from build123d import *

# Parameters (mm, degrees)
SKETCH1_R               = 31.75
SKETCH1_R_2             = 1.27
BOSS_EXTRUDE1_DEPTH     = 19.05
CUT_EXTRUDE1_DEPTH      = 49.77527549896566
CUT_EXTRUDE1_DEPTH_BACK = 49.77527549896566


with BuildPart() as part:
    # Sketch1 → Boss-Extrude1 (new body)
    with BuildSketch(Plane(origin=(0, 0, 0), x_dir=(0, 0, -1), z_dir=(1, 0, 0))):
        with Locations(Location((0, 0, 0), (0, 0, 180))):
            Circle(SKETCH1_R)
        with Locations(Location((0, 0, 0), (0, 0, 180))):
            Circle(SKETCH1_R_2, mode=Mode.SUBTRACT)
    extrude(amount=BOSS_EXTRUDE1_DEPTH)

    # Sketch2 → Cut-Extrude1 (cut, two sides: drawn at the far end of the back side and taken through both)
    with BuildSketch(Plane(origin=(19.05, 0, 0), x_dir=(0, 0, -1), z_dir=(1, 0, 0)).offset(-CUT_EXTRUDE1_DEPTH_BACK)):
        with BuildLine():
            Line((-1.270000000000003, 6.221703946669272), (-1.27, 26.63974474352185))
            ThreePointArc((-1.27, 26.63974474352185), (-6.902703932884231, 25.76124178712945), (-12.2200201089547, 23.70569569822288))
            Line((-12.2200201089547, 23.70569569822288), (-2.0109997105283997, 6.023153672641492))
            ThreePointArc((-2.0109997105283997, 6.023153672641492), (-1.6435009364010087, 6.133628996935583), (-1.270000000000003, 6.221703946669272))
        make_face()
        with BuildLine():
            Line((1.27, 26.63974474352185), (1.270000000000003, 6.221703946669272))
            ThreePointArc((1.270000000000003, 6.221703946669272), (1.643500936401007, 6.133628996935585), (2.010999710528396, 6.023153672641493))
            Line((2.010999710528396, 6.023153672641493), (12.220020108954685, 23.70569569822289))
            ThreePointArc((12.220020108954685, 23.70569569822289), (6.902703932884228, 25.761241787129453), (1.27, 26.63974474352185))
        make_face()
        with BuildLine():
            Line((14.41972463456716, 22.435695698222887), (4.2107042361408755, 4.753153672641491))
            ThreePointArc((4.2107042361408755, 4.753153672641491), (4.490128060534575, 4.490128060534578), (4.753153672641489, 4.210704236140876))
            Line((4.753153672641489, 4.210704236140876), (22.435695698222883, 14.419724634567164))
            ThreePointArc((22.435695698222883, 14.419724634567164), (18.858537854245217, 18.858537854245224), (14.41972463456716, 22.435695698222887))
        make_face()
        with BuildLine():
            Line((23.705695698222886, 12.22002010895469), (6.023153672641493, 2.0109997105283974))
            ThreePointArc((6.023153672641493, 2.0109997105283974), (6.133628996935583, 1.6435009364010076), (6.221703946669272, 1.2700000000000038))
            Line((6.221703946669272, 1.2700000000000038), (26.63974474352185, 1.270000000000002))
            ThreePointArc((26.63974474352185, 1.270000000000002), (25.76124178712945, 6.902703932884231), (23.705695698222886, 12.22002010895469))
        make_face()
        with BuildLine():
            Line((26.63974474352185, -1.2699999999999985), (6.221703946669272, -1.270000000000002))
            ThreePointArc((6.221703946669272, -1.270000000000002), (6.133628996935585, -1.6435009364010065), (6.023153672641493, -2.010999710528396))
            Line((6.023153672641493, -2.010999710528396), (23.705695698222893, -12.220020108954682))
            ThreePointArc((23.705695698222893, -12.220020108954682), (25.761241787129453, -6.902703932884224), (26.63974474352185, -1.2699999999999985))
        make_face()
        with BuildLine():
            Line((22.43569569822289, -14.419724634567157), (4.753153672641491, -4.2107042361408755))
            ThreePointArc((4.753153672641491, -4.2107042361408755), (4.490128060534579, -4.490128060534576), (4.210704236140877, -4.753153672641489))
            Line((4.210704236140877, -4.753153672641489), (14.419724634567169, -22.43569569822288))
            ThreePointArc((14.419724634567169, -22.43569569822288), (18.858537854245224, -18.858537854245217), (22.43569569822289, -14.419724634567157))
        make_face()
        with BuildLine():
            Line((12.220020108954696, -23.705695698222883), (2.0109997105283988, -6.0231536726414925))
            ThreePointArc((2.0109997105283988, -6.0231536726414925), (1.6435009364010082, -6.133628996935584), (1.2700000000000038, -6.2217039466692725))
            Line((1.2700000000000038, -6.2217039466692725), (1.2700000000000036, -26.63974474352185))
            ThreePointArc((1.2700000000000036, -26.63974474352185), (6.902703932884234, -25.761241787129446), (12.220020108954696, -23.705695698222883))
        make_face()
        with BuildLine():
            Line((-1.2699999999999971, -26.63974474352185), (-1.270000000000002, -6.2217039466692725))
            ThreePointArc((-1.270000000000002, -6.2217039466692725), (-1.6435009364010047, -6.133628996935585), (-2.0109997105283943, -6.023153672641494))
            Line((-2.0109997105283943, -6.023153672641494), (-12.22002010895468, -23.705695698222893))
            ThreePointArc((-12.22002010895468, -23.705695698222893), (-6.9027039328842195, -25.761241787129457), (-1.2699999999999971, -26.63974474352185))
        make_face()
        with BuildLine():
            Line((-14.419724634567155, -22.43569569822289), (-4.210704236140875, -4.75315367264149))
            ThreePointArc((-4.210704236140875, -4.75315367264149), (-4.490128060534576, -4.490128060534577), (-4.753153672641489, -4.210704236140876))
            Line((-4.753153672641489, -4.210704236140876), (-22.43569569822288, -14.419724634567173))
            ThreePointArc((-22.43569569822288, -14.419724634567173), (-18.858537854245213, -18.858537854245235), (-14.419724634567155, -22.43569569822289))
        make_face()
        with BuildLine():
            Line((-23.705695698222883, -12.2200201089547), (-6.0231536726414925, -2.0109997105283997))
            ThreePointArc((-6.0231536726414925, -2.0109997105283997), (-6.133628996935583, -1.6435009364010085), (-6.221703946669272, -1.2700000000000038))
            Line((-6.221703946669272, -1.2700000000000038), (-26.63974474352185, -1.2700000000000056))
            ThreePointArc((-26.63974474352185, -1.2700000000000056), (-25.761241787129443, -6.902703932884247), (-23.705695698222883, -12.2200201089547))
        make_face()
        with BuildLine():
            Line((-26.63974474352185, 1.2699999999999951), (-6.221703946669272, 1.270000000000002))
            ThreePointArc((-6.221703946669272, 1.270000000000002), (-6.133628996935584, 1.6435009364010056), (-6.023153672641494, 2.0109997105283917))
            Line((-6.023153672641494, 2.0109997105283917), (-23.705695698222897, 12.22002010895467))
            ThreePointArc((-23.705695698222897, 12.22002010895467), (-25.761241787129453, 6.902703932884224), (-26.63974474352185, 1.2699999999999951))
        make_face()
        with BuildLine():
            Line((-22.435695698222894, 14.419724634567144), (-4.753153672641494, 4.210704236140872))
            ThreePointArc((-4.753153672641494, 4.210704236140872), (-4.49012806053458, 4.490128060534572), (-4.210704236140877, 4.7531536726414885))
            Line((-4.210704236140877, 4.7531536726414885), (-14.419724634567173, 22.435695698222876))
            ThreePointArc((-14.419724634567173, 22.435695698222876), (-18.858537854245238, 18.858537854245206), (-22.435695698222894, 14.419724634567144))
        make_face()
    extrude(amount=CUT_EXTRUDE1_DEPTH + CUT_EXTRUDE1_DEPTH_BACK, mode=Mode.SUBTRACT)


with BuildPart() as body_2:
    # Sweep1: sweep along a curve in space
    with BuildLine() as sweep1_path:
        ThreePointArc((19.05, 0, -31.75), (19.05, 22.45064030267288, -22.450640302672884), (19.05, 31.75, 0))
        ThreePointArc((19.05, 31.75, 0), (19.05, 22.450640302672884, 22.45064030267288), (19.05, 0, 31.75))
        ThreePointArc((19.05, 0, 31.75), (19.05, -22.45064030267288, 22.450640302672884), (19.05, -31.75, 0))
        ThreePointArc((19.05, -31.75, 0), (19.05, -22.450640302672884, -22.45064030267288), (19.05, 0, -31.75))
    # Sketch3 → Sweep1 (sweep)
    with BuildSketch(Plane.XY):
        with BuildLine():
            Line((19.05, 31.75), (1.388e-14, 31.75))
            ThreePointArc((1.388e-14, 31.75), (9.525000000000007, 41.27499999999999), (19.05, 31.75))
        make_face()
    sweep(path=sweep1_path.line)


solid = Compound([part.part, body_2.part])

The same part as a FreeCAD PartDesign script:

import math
import FreeCAD as App
import Part
import Sketcher
Q = App.Units.Quantity

doc = App.newDocument("Part")
params = doc.addObject("Spreadsheet::Sheet", "Params")
for row, (alias, value) in enumerate([
    ("sketch1_diameter", "2.5 in"),
    ("sketch1_diameter2", "0.1 in"),
    ("pad1_length", "0.75 in"),
    ("sketch2_radius", "1.05 in"),
    ("sketch2_radius2", "0.25 in"),
    ("sketch3_radius", "0.375 in"),
    ("sketch4_diameter", "2.5 in"),
], start=1):
    params.set(f"A{row}", alias)
    params.set(f"B{row}", "=" + value)
    params.setAlias(f"B{row}", alias)

body = doc.addObject("PartDesign::Body", "Body")

sketch1 = doc.addObject("Sketcher::SketchObject", "Sketch")
body.addObject(sketch1)
sketch1.AttachmentSupport = (doc.YZ_Plane, [""])
sketch1.MapMode = "FlatFace"
sketch1.addGeometry(Part.Circle(App.Vector(0, 0, 0), App.Vector(0, 0, 1), 31.8), False)
sketch1.addGeometry(Part.Circle(App.Vector(0, 0, 0), App.Vector(0, 0, 1), 1.3), False)
sketch1.addConstraint(Sketcher.Constraint("Coincident", 0, 3, -1, 1))
sketch1.addConstraint(Sketcher.Constraint("Coincident", 1, 3, -1, 1))
sketch1.addConstraint(Sketcher.Constraint("Diameter", 0, Q("2.5 in")))
sketch1.addConstraint(Sketcher.Constraint("Diameter", 1, Q("0.1 in")))
sketch1.setExpression("Constraints[2]", "Params.sketch1_diameter")
sketch1.setExpression("Constraints[3]", "Params.sketch1_diameter2")
pad1 = doc.addObject("PartDesign::Pad", "Pad")
body.addObject(pad1)
pad1.Profile = sketch1
pad1.setExpression("Length", "Params.pad1_length")

sketch2 = doc.addObject("Sketcher::SketchObject", "Sketch001")
body.addObject(sketch2)
sketch2.AttachmentSupport = (doc.YZ_Plane, [""])
sketch2.MapMode = "FlatFace"
sketch2.AttachmentOffset = App.Placement(App.Vector(0, 0, 0.75 * 25.4), App.Rotation())
sketch2.addGeometry(Part.LineSegment(App.Vector(6.2, 1.3, 0), App.Vector(26.6, 1.3, 0)), False)
sketch2.addGeometry(Part.ArcOfCircle(Part.Circle(App.Vector(0, 0, 0), App.Vector(0, 0, 1), 26.7), math.radians(3), math.radians(27)), False)
sketch2.addGeometry(Part.LineSegment(App.Vector(23.7, 12.2, 0), App.Vector(6, 2, 0)), False)
sketch2.addGeometry(Part.ArcOfCircle(Part.Circle(App.Vector(0, 0, 0), App.Vector(0, 0, 1), 6.3), math.radians(11.54), math.radians(18.46)), False)
sketch2.addGeometry(Part.LineSegment(App.Vector(26.6, -1.3, 0), App.Vector(6.2, -1.3, 0)), False)
sketch2.addGeometry(Part.ArcOfCircle(Part.Circle(App.Vector(0, 0, 0), App.Vector(0, 0, 1), 6.3), math.radians(-18.46), math.radians(-11.54)), False)
sketch2.addGeometry(Part.LineSegment(App.Vector(6, -2, 0), App.Vector(23.7, -12.2, 0)), False)
sketch2.addGeometry(Part.ArcOfCircle(Part.Circle(App.Vector(0, 0, 0), App.Vector(0, 0, 1), 26.7), math.radians(-27), math.radians(-3)), False)
sketch2.addGeometry(Part.LineSegment(App.Vector(22.4, -14.4, 0), App.Vector(4.8, -4.2, 0)), False)
sketch2.addGeometry(Part.ArcOfCircle(Part.Circle(App.Vector(0, 0, 0), App.Vector(0, 0, 1), 6.3), math.radians(-48.46), math.radians(-41.54)), False)
sketch2.addGeometry(Part.LineSegment(App.Vector(4.2, -4.8, 0), App.Vector(14.4, -22.4, 0)), False)
sketch2.addGeometry(Part.ArcOfCircle(Part.Circle(App.Vector(0, 0, 0), App.Vector(0, 0, 1), 26.7), math.radians(-57), math.radians(-33)), False)
sketch2.addGeometry(Part.LineSegment(App.Vector(12.2, -23.7, 0), App.Vector(2, -6, 0)), False)
sketch2.addGeometry(Part.ArcOfCircle(Part.Circle(App.Vector(0, 0, 0), App.Vector(0, 0, 1), 6.3), math.radians(-78.46), math.radians(-71.54)), False)
sketch2.addGeometry(Part.LineSegment(App.Vector(1.3, -6.2, 0), App.Vector(1.3, -26.6, 0)), False)
sketch2.addGeometry(Part.ArcOfCircle(Part.Circle(App.Vector(0, 0, 0), App.Vector(0, 0, 1), 26.7), math.radians(-87), math.radians(-63)), False)
sketch2.addGeometry(Part.LineSegment(App.Vector(-1.3, -26.6, 0), App.Vector(-1.3, -6.2, 0)), False)
sketch2.addGeometry(Part.ArcOfCircle(Part.Circle(App.Vector(0, 0, 0), App.Vector(0, 0, 1), 6.3), math.radians(-108.46), math.radians(-101.54)), False)
sketch2.addGeometry(Part.LineSegment(App.Vector(-2, -6, 0), App.Vector(-12.2, -23.7, 0)), False)
sketch2.addGeometry(Part.ArcOfCircle(Part.Circle(App.Vector(0, 0, 0), App.Vector(0, 0, 1), 26.7), math.radians(-117), math.radians(-93)), False)
sketch2.addGeometry(Part.LineSegment(App.Vector(-14.4, -22.4, 0), App.Vector(-4.2, -4.8, 0)), False)
sketch2.addGeometry(Part.ArcOfCircle(Part.Circle(App.Vector(0, 0, 0), App.Vector(0, 0, 1), 6.3), math.radians(-138.46), math.radians(-131.54)), False)
sketch2.addGeometry(Part.LineSegment(App.Vector(-4.8, -4.2, 0), App.Vector(-22.4, -14.4, 0)), False)
sketch2.addGeometry(Part.ArcOfCircle(Part.Circle(App.Vector(0, 0, 0), App.Vector(0, 0, 1), 26.7), math.radians(-147), math.radians(-123)), False)
sketch2.addGeometry(Part.LineSegment(App.Vector(-23.7, -12.2, 0), App.Vector(-6, -2, 0)), False)
sketch2.addGeometry(Part.ArcOfCircle(Part.Circle(App.Vector(0, 0, 0), App.Vector(0, 0, 1), 6.3), math.radians(-168.46), math.radians(-161.54)), False)
sketch2.addGeometry(Part.LineSegment(App.Vector(-6.2, -1.3, 0), App.Vector(-26.6, -1.3, 0)), False)
sketch2.addGeometry(Part.ArcOfCircle(Part.Circle(App.Vector(0, 0, 0), App.Vector(0, 0, 1), 26.7), math.radians(-177), math.radians(-153)), False)
sketch2.addGeometry(Part.LineSegment(App.Vector(-26.6, 1.3, 0), App.Vector(-6.2, 1.3, 0)), False)
sketch2.addGeometry(Part.ArcOfCircle(Part.Circle(App.Vector(0, 0, 0), App.Vector(0, 0, 1), 6.3), math.radians(161.54), math.radians(168.46)), False)
sketch2.addGeometry(Part.LineSegment(App.Vector(-6, 2, 0), App.Vector(-23.7, 12.2, 0)), False)
sketch2.addGeometry(Part.ArcOfCircle(Part.Circle(App.Vector(0, 0, 0), App.Vector(0, 0, 1), 26.7), math.radians(153), math.radians(177)), False)
sketch2.addGeometry(Part.LineSegment(App.Vector(-22.4, 14.4, 0), App.Vector(-4.8, 4.2, 0)), False)
sketch2.addGeometry(Part.ArcOfCircle(Part.Circle(App.Vector(0, 0, 0), App.Vector(0, 0, 1), 6.3), math.radians(131.54), math.radians(138.46)), False)
sketch2.addGeometry(Part.LineSegment(App.Vector(-4.2, 4.8, 0), App.Vector(-14.4, 22.4, 0)), False)
sketch2.addGeometry(Part.ArcOfCircle(Part.Circle(App.Vector(0, 0, 0), App.Vector(0, 0, 1), 26.7), math.radians(123), math.radians(147)), False)
sketch2.addGeometry(Part.LineSegment(App.Vector(-12.2, 23.7, 0), App.Vector(-2, 6, 0)), False)
sketch2.addGeometry(Part.ArcOfCircle(Part.Circle(App.Vector(0, 0, 0), App.Vector(0, 0, 1), 6.3), math.radians(101.54), math.radians(108.46)), False)
sketch2.addGeometry(Part.LineSegment(App.Vector(-1.3, 6.2, 0), App.Vector(-1.3, 26.6, 0)), False)
sketch2.addGeometry(Part.ArcOfCircle(Part.Circle(App.Vector(0, 0, 0), App.Vector(0, 0, 1), 26.7), math.radians(93), math.radians(117)), False)
sketch2.addGeometry(Part.LineSegment(App.Vector(1.3, 26.6, 0), App.Vector(1.3, 6.2, 0)), False)
sketch2.addGeometry(Part.ArcOfCircle(Part.Circle(App.Vector(0, 0, 0), App.Vector(0, 0, 1), 6.3), math.radians(71.54), math.radians(78.46)), False)
sketch2.addGeometry(Part.LineSegment(App.Vector(2, 6, 0), App.Vector(12.2, 23.7, 0)), False)
sketch2.addGeometry(Part.ArcOfCircle(Part.Circle(App.Vector(0, 0, 0), App.Vector(0, 0, 1), 26.7), math.radians(63), math.radians(87)), False)
sketch2.addGeometry(Part.LineSegment(App.Vector(14.4, 22.4, 0), App.Vector(4.2, 4.8, 0)), False)
sketch2.addGeometry(Part.ArcOfCircle(Part.Circle(App.Vector(0, 0, 0), App.Vector(0, 0, 1), 6.3), math.radians(41.54), math.radians(48.46)), False)
sketch2.addGeometry(Part.LineSegment(App.Vector(4.8, 4.2, 0), App.Vector(22.4, 14.4, 0)), False)
sketch2.addGeometry(Part.ArcOfCircle(Part.Circle(App.Vector(0, 0, 0), App.Vector(0, 0, 1), 26.7), math.radians(33), math.radians(57)), False)
sketch2.addConstraint(Sketcher.Constraint("Coincident", 0, 2, 1, 1))
sketch2.addConstraint(Sketcher.Constraint("Coincident", 1, 2, 2, 1))
sketch2.addConstraint(Sketcher.Constraint("Coincident", 2, 2, 3, 2))
sketch2.addConstraint(Sketcher.Constraint("Coincident", 3, 1, 0, 1))
sketch2.addConstraint(Sketcher.Constraint("Coincident", 4, 2, 5, 2))
sketch2.addConstraint(Sketcher.Constraint("Coincident", 5, 1, 6, 1))
sketch2.addConstraint(Sketcher.Constraint("Coincident", 6, 2, 7, 1))
sketch2.addConstraint(Sketcher.Constraint("Coincident", 7, 2, 4, 1))
sketch2.addConstraint(Sketcher.Constraint("Coincident", 8, 2, 9, 2))
sketch2.addConstraint(Sketcher.Constraint("Coincident", 9, 1, 10, 1))
sketch2.addConstraint(Sketcher.Constraint("Coincident", 10, 2, 11, 1))
sketch2.addConstraint(Sketcher.Constraint("Coincident", 11, 2, 8, 1))
sketch2.addConstraint(Sketcher.Constraint("Coincident", 12, 2, 13, 2))
sketch2.addConstraint(Sketcher.Constraint("Coincident", 13, 1, 14, 1))
sketch2.addConstraint(Sketcher.Constraint("Coincident", 14, 2, 15, 1))
sketch2.addConstraint(Sketcher.Constraint("Coincident", 15, 2, 12, 1))
sketch2.addConstraint(Sketcher.Constraint("Coincident", 16, 2, 17, 2))
sketch2.addConstraint(Sketcher.Constraint("Coincident", 17, 1, 18, 1))
sketch2.addConstraint(Sketcher.Constraint("Coincident", 18, 2, 19, 1))
sketch2.addConstraint(Sketcher.Constraint("Coincident", 19, 2, 16, 1))
sketch2.addConstraint(Sketcher.Constraint("Coincident", 20, 2, 21, 2))
sketch2.addConstraint(Sketcher.Constraint("Coincident", 21, 1, 22, 1))
sketch2.addConstraint(Sketcher.Constraint("Coincident", 22, 2, 23, 1))
sketch2.addConstraint(Sketcher.Constraint("Coincident", 23, 2, 20, 1))
sketch2.addConstraint(Sketcher.Constraint("Coincident", 24, 2, 25, 2))
sketch2.addConstraint(Sketcher.Constraint("Coincident", 25, 1, 26, 1))
sketch2.addConstraint(Sketcher.Constraint("Coincident", 26, 2, 27, 1))
sketch2.addConstraint(Sketcher.Constraint("Coincident", 27, 2, 24, 1))
sketch2.addConstraint(Sketcher.Constraint("Coincident", 28, 2, 29, 2))
sketch2.addConstraint(Sketcher.Constraint("Coincident", 29, 1, 30, 1))
sketch2.addConstraint(Sketcher.Constraint("Coincident", 30, 2, 31, 1))
sketch2.addConstraint(Sketcher.Constraint("Coincident", 31, 2, 28, 1))
sketch2.addConstraint(Sketcher.Constraint("Coincident", 32, 2, 33, 2))
sketch2.addConstraint(Sketcher.Constraint("Coincident", 33, 1, 34, 1))
sketch2.addConstraint(Sketcher.Constraint("Coincident", 34, 2, 35, 1))
sketch2.addConstraint(Sketcher.Constraint("Coincident", 35, 2, 32, 1))
sketch2.addConstraint(Sketcher.Constraint("Coincident", 36, 2, 37, 2))
sketch2.addConstraint(Sketcher.Constraint("Coincident", 37, 1, 38, 1))
sketch2.addConstraint(Sketcher.Constraint("Coincident", 38, 2, 39, 1))
sketch2.addConstraint(Sketcher.Constraint("Coincident", 39, 2, 36, 1))
sketch2.addConstraint(Sketcher.Constraint("Coincident", 40, 2, 41, 2))
sketch2.addConstraint(Sketcher.Constraint("Coincident", 41, 1, 42, 1))
sketch2.addConstraint(Sketcher.Constraint("Coincident", 42, 2, 43, 1))
sketch2.addConstraint(Sketcher.Constraint("Coincident", 43, 2, 40, 1))
sketch2.addConstraint(Sketcher.Constraint("Coincident", 44, 2, 45, 2))
sketch2.addConstraint(Sketcher.Constraint("Coincident", 45, 1, 46, 1))
sketch2.addConstraint(Sketcher.Constraint("Coincident", 46, 2, 47, 1))
sketch2.addConstraint(Sketcher.Constraint("Coincident", 47, 2, 44, 1))
sketch2.addConstraint(Sketcher.Constraint("Horizontal", 0))
sketch2.addConstraint(Sketcher.Constraint("Horizontal", 4))
sketch2.addConstraint(Sketcher.Constraint("Vertical", 14))
sketch2.addConstraint(Sketcher.Constraint("Vertical", 16))
sketch2.addConstraint(Sketcher.Constraint("Horizontal", 26))
sketch2.addConstraint(Sketcher.Constraint("Horizontal", 28))
sketch2.addConstraint(Sketcher.Constraint("Vertical", 38))
sketch2.addConstraint(Sketcher.Constraint("Vertical", 40))
sketch2.addConstraint(Sketcher.Constraint("Coincident", 1, 3, -1, 1))
sketch2.addConstraint(Sketcher.Constraint("Coincident", 3, 3, -1, 1))
sketch2.addConstraint(Sketcher.Constraint("Coincident", 5, 3, -1, 1))
sketch2.addConstraint(Sketcher.Constraint("Coincident", 7, 3, -1, 1))
sketch2.addConstraint(Sketcher.Constraint("Coincident", 9, 3, -1, 1))
sketch2.addConstraint(Sketcher.Constraint("Coincident", 11, 3, -1, 1))
sketch2.addConstraint(Sketcher.Constraint("Coincident", 13, 3, -1, 1))
sketch2.addConstraint(Sketcher.Constraint("Coincident", 15, 3, -1, 1))
sketch2.addConstraint(Sketcher.Constraint("Coincident", 17, 3, -1, 1))
sketch2.addConstraint(Sketcher.Constraint("Coincident", 19, 3, -1, 1))
sketch2.addConstraint(Sketcher.Constraint("Coincident", 21, 3, -1, 1))
sketch2.addConstraint(Sketcher.Constraint("Coincident", 23, 3, -1, 1))
sketch2.addConstraint(Sketcher.Constraint("Coincident", 25, 3, -1, 1))
sketch2.addConstraint(Sketcher.Constraint("Coincident", 27, 3, -1, 1))
sketch2.addConstraint(Sketcher.Constraint("Coincident", 29, 3, -1, 1))
sketch2.addConstraint(Sketcher.Constraint("Coincident", 31, 3, -1, 1))
sketch2.addConstraint(Sketcher.Constraint("Coincident", 33, 3, -1, 1))
sketch2.addConstraint(Sketcher.Constraint("Coincident", 35, 3, -1, 1))
sketch2.addConstraint(Sketcher.Constraint("Coincident", 37, 3, -1, 1))
sketch2.addConstraint(Sketcher.Constraint("Coincident", 39, 3, -1, 1))
sketch2.addConstraint(Sketcher.Constraint("Coincident", 41, 3, -1, 1))
sketch2.addConstraint(Sketcher.Constraint("Coincident", 43, 3, -1, 1))
sketch2.addConstraint(Sketcher.Constraint("Coincident", 45, 3, -1, 1))
sketch2.addConstraint(Sketcher.Constraint("Coincident", 47, 3, -1, 1))
sketch2.addConstraint(Sketcher.Constraint("Equal", 3, 5))
sketch2.addConstraint(Sketcher.Constraint("Equal", 1, 7))
sketch2.addConstraint(Sketcher.Constraint("Equal", 5, 9))
sketch2.addConstraint(Sketcher.Constraint("Equal", 7, 11))
sketch2.addConstraint(Sketcher.Constraint("Equal", 9, 13))
sketch2.addConstraint(Sketcher.Constraint("Equal", 11, 15))
sketch2.addConstraint(Sketcher.Constraint("Equal", 13, 17))
sketch2.addConstraint(Sketcher.Constraint("Equal", 15, 19))
sketch2.addConstraint(Sketcher.Constraint("Equal", 17, 21))
sketch2.addConstraint(Sketcher.Constraint("Equal", 19, 23))
sketch2.addConstraint(Sketcher.Constraint("Equal", 21, 25))
sketch2.addConstraint(Sketcher.Constraint("Equal", 23, 27))
sketch2.addConstraint(Sketcher.Constraint("Equal", 25, 29))
sketch2.addConstraint(Sketcher.Constraint("Equal", 27, 31))
sketch2.addConstraint(Sketcher.Constraint("Equal", 29, 33))
sketch2.addConstraint(Sketcher.Constraint("Equal", 31, 35))
sketch2.addConstraint(Sketcher.Constraint("Equal", 33, 37))
sketch2.addConstraint(Sketcher.Constraint("Equal", 35, 39))
sketch2.addConstraint(Sketcher.Constraint("Equal", 37, 41))
sketch2.addConstraint(Sketcher.Constraint("Equal", 39, 43))
sketch2.addConstraint(Sketcher.Constraint("Equal", 41, 45))
sketch2.addConstraint(Sketcher.Constraint("Equal", 43, 47))
sketch2.addConstraint(Sketcher.Constraint("Parallel", 6, 8))
sketch2.addConstraint(Sketcher.Constraint("Perpendicular", 2, 10))
sketch2.addConstraint(Sketcher.Constraint("Parallel", 10, 12))
sketch2.addConstraint(Sketcher.Constraint("Perpendicular", 8, 18))
sketch2.addConstraint(Sketcher.Constraint("Parallel", 18, 20))
sketch2.addConstraint(Sketcher.Constraint("Perpendicular", 12, 22))
sketch2.addConstraint(Sketcher.Constraint("Parallel", 22, 24))
sketch2.addConstraint(Sketcher.Constraint("Perpendicular", 20, 30))
sketch2.addConstraint(Sketcher.Constraint("Parallel", 30, 32))
sketch2.addConstraint(Sketcher.Constraint("Perpendicular", 24, 34))
sketch2.addConstraint(Sketcher.Constraint("Parallel", 34, 36))
sketch2.addConstraint(Sketcher.Constraint("Perpendicular", 32, 42))
sketch2.addConstraint(Sketcher.Constraint("Parallel", 42, 44))
sketch2.addConstraint(Sketcher.Constraint("Perpendicular", 36, 46))
sketch2.addConstraint(Sketcher.Constraint("Horizontal", 13, 1, 16, 2))
sketch2.addConstraint(Sketcher.Constraint("Horizontal", 12, 2, 17, 1))
sketch2.addConstraint(Sketcher.Constraint("Horizontal", 15, 2, 18, 2))
sketch2.addConstraint(Sketcher.Constraint("Horizontal", 9, 1, 20, 2))
sketch2.addConstraint(Sketcher.Constraint("Horizontal", 8, 2, 21, 1))
sketch2.addConstraint(Sketcher.Constraint("Horizontal", 5, 1, 24, 2))
sketch2.addConstraint(Sketcher.Constraint("Horizontal", 7, 2, 25, 1))
sketch2.addConstraint(Sketcher.Constraint("Horizontal", 3, 1, 28, 2))
sketch2.addConstraint(Sketcher.Constraint("Horizontal", 2, 2, 29, 1))
sketch2.addConstraint(Sketcher.Constraint("Horizontal", 37, 1, 40, 2))
sketch2.addConstraint(Sketcher.Constraint("Horizontal", 36, 2, 41, 1))
sketch2.addConstraint(Sketcher.Constraint("Horizontal", 33, 1, 44, 2))
sketch2.addConstraint(Sketcher.Constraint("Horizontal", 32, 2, 45, 1))
sketch2.addConstraint(Sketcher.Constraint("Vertical", 3, 1, 4, 2))
sketch2.addConstraint(Sketcher.Constraint("Vertical", 2, 2, 5, 1))
sketch2.addConstraint(Sketcher.Constraint("Vertical", 21, 1, 32, 2))
sketch2.addConstraint(Sketcher.Constraint("Vertical", 20, 2, 33, 1))
sketch2.addConstraint(Sketcher.Constraint("Vertical", 17, 1, 36, 2))
sketch2.addConstraint(Sketcher.Constraint("Vertical", 19, 2, 37, 1))
sketch2.addConstraint(Sketcher.Constraint("Equal", 28, 14))
sketch2.addConstraint(Sketcher.Constraint("Equal", 6, 8))
sketch2.addConstraint(Sketcher.Constraint("Equal", 8, 10))
sketch2.addConstraint(Sketcher.Constraint("Equal", 10, 12))
sketch2.addConstraint(Sketcher.Constraint("Radius", 1, Q("1.05 in")))
sketch2.addConstraint(Sketcher.Constraint("Radius", 3, Q("0.25 in")))
sketch2.addConstraint(Sketcher.Constraint("Angle", 2, Q("-150 deg")))
sketch2.addConstraint(Sketcher.Constraint("DistanceY", -1, 1, 0, 2, Q("0.05 in")))
sketch2.addConstraint(Sketcher.Constraint("DistanceY", -1, 1, 2, 2, Q("2.011 mm")))
sketch2.setExpression("Constraints[139]", "Params.sketch2_radius")
sketch2.setExpression("Constraints[140]", "Params.sketch2_radius2")
pocket1 = doc.addObject("PartDesign::Pocket", "Pocket")
body.addObject(pocket1)
pocket1.Profile = sketch2
pocket1.Type = "ThroughAll"
pocket1.Midplane = True
body2 = doc.addObject("PartDesign::Body", "Body001")

sketch3 = doc.addObject("Sketcher::SketchObject", "Sketch002")
body2.addObject(sketch3)
sketch3.AttachmentSupport = (doc.getObject("XY_Plane001"), [""])
sketch3.MapMode = "FlatFace"
sketch3.addGeometry(Part.LineSegment(App.Vector(0, 32, 0), App.Vector(19, 32, 0)), False)
sketch3.addGeometry(Part.ArcOfCircle(Part.Circle(App.Vector(10, 32, 0), App.Vector(0, 0, 1), 10), math.radians(0), math.radians(180)), False)
sketch3.addConstraint(Sketcher.Constraint("Coincident", 0, 1, 1, 2))
sketch3.addConstraint(Sketcher.Constraint("Coincident", 1, 1, 0, 2))
sketch3.addConstraint(Sketcher.Constraint("Horizontal", 0))
sketch3.addConstraint(Sketcher.Constraint("PointOnObject", 0, 1, -2))
sketch3.addConstraint(Sketcher.Constraint("Horizontal", 1, 3, 0, 1))
sketch3.addConstraint(Sketcher.Constraint("Radius", 1, Q("0.375 in")))
sketch3.addConstraint(Sketcher.Constraint("DistanceY", -1, 1, 1, 3, Q("1.25 in")))
sketch3.setExpression("Constraints[5]", "Params.sketch3_radius")

sketch4 = doc.addObject("Sketcher::SketchObject", "Sketch003")
body2.addObject(sketch4)
sketch4.AttachmentSupport = (doc.getObject("YZ_Plane001"), [""])
sketch4.MapMode = "FlatFace"
sketch4.AttachmentOffset = App.Placement(App.Vector(0, 0, 0.75 * 25.4), App.Rotation())
sketch4.addGeometry(Part.Circle(App.Vector(0, 0, 0), App.Vector(0, 0, 1), 32), False)
sketch4.addConstraint(Sketcher.Constraint("Coincident", 0, 3, -1, 1))
sketch4.addConstraint(Sketcher.Constraint("Diameter", 0, Q("2.5 in")))
sketch4.setExpression("Constraints[1]", "Params.sketch4_diameter")
doc.recompute()

additivepipe = doc.addObject("PartDesign::AdditivePipe", "AdditivePipe")
body2.addObject(additivepipe)
additivepipe.Profile = sketch3
additivepipe.Spine = (sketch4, ["Edge1"])

doc.recompute()
